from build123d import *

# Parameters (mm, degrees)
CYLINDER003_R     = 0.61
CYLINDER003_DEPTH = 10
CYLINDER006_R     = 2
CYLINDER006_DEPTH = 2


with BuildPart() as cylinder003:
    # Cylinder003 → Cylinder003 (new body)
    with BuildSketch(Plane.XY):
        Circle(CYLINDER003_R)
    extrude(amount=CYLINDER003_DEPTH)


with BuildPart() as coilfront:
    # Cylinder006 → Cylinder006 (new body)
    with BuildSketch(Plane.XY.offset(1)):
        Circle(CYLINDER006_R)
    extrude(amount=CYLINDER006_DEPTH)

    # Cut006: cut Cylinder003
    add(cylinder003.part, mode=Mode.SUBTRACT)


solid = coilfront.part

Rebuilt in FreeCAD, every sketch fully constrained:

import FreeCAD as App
import Part
import Sketcher
from FreeCAD import Vector

doc = App.newDocument("Part")
body = doc.addObject("PartDesign::Body", "Body")

sketch1 = body.newObject("Sketcher::SketchObject", "Sketch")
sketch1.AttachmentSupport = (doc.getObject("XY_Plane"), [""])
sketch1.MapMode = "FlatFace"
sketch1.addGeometry(Part.Circle(Vector(0, 0, 0), Vector(0, 0, 1), 0.6), False)
sketch1.addConstraint([
    Sketcher.Constraint("Coincident", 0, 3, -1, 1),
    Sketcher.Constraint("Diameter", 0, 1.22),
])
pad1 = body.newObject("PartDesign::Pad", "Pad")
pad1.Profile = sketch1
pad1.Length = 10
body2 = doc.addObject("PartDesign::Body", "Body001")

sketch2 = body2.newObject("Sketcher::SketchObject", "Sketch001")
sketch2.AttachmentSupport = (doc.getObject("XY_Plane001"), [""])
sketch2.MapMode = "FlatFace"
sketch2.AttachmentOffset = App.Placement(Vector(0, 0, 1), App.Rotation())
sketch2.addGeometry(Part.Circle(Vector(0, 0, 0), Vector(0, 0, 1), 2), False)
sketch2.addConstraint([
    Sketcher.Constraint("Coincident", 0, 3, -1, 1),
    Sketcher.Constraint("Diameter", 0, 4.0),
])
pad2 = body2.newObject("PartDesign::Pad", "Pad001")
pad2.Profile = sketch2
pad2.Length = 2
doc.recompute()

boolean = body2.newObject("PartDesign::Boolean", "Boolean")
boolean.Type = "Cut"
boolean.addObjects([body])

doc.recompute()
